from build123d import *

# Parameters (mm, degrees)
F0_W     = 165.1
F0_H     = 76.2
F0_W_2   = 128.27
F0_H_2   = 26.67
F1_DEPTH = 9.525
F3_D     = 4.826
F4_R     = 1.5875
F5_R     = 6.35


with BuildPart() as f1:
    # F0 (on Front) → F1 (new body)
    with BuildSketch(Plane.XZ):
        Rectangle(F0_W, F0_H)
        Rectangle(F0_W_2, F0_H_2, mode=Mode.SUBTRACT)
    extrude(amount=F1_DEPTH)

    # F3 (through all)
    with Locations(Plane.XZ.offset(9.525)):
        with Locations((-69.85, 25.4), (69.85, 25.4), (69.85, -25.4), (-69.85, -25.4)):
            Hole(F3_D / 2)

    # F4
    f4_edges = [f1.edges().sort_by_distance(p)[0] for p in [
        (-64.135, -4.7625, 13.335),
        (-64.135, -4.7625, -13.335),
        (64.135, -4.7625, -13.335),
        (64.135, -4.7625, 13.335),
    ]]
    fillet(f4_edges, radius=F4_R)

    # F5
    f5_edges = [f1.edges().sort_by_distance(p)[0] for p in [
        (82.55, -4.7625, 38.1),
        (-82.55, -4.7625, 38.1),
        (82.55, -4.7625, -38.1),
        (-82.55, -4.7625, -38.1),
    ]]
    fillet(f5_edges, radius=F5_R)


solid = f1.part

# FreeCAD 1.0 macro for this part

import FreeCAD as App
import Part
import Sketcher
Q = App.Units.Quantity


def edges_at(feature, points):
    """Names of the edges that pass closest to the given points."""
    edges = feature.Shape.Edges
    near = lambda p: min(range(len(edges)), key=lambda i: edges[i].distToShape(Part.Vertex(*p))[0])
    return sorted({f"Edge{near(p) + 1}" for p in points})

doc = App.newDocument("Part")
body = doc.addObject("PartDesign::Body", "Body")

# Sketch on XZ plane
sketch1 = doc.addObject("Sketcher::SketchObject", "Sketch")
body.addObject(sketch1)
sketch1.AttachmentSupport = (doc.XZ_Plane, [""])
sketch1.MapMode = "FlatFace"
sketch1.addGeometry([
    Part.LineSegment(App.Vector(-83, 38, 0), App.Vector(-83, -38, 0)),  # 0
    Part.LineSegment(App.Vector(-83, -38, 0), App.Vector(83, -38, 0)),  # 1
    Part.LineSegment(App.Vector(83, -38, 0), App.Vector(83, 38, 0)),  # 2
    Part.LineSegment(App.Vector(83, 38, 0), App.Vector(-83, 38, 0)),  # 3
    Part.LineSegment(App.Vector(64, -13, 0), App.Vector(-64, -13, 0)),  # 4
    Part.LineSegment(App.Vector(-64, -13, 0), App.Vector(-64, 13, 0)),  # 5
    Part.LineSegment(App.Vector(-64, 13, 0), App.Vector(64, 13, 0)),  # 6
    Part.LineSegment(App.Vector(64, 13, 0), App.Vector(64, -13, 0)),  # 7
], False)
sketch1.addConstraint([
    Sketcher.Constraint("Coincident", 0, 2, 1, 1),
    Sketcher.Constraint("Coincident", 1, 2, 2, 1),
    Sketcher.Constraint("Coincident", 2, 2, 3, 1),
    Sketcher.Constraint("Coincident", 3, 2, 0, 1),
    Sketcher.Constraint("Coincident", 4, 2, 5, 1),
    Sketcher.Constraint("Coincident", 5, 2, 6, 1),
    Sketcher.Constraint("Coincident", 6, 2, 7, 1),
    Sketcher.Constraint("Coincident", 7, 2, 4, 1),
    Sketcher.Constraint("Vertical", 0),
    Sketcher.Constraint("Horizontal", 1),
    Sketcher.Constraint("Vertical", 2),
    Sketcher.Constraint("Horizontal", 3),
    Sketcher.Constraint("Horizontal", 4),
    Sketcher.Constraint("Vertical", 5),
    Sketcher.Constraint("Horizontal", 6),
    Sketcher.Constraint("Vertical", 7),
    Sketcher.Constraint("Symmetric", 0, 2, 2, 2, -1, 1),
    Sketcher.Constraint("Symmetric", 4, 2, 6, 2, -1, 1),
    Sketcher.Constraint("DistanceY", 0, 2, 0, 1, Q("3 in")),
    Sketcher.Constraint("DistanceX", 1, 1, 1, 2, Q("6.5 in")),
    Sketcher.Constraint("DistanceX", 4, 2, 4, 1, Q("5.05 in")),
    Sketcher.Constraint("DistanceY", 5, 1, 5, 2, Q("1.05 in")),
])
pad1 = doc.addObject("PartDesign::Pad", "Pad")
body.addObject(pad1)
pad1.Profile = sketch1
pad1.Length = Q("0.375 in")

# Sketch on XZ plane
sketch2 = doc.addObject("Sketcher::SketchObject", "Sketch001")
body.addObject(sketch2)
sketch2.AttachmentSupport = (doc.XZ_Plane, [""])
sketch2.MapMode = "FlatFace"
sketch2.AttachmentOffset = App.Placement(App.Vector(0, 0, 0.375 * 25.4), App.Rotation())
sketch2.addGeometry([
    Part.Circle(App.Vector(-69.8, 25.4, 0), App.Vector(0, 0, 1), 2.4),
    Part.Circle(App.Vector(69.8, 25.4, 0), App.Vector(0, 0, 1), 2.4),
    Part.Circle(App.Vector(69.8, -25.4, 0), App.Vector(0, 0, 1), 2.4),
    Part.Circle(App.Vector(-69.8, -25.4, 0), App.Vector(0, 0, 1), 2.4),
], False)
sketch2.addConstraint([
    Sketcher.Constraint("Equal", 0, 1),
    Sketcher.Constraint("Equal", 1, 2),
    Sketcher.Constraint("Equal", 2, 3),
    Sketcher.Constraint("Symmetric", 0, 3, 2, 3, -1, 1),
    Sketcher.Constraint("Symmetric", 1, 3, 3, 3, -1, 1),
    Sketcher.Constraint("Symmetric", 0, 3, 1, 3, -2),
    Sketcher.Constraint("Diameter", 0, Q("0.19 in")),
    Sketcher.Constraint("DistanceY", -1, 1, 0, 3, Q("1 in")),
    Sketcher.Constraint("DistanceX", 0, 3, 1, 3, Q("5.5 in")),
])
doc.recompute()
hole = doc.addObject("PartDesign::Hole", "Hole")
body.addObject(hole)
hole.Profile = sketch2
hole.ThreadType = "None"
hole.Diameter = Q("0.19 in")
hole.DepthType = "ThroughAll"
doc.recompute()

fillet = doc.addObject("PartDesign::Fillet", "Fillet")
body.addObject(fillet)
fillet.Base = (hole, edges_at(hole, [
    (-64.135, -4.763, 13.335),
    (-64.135, -4.763, -13.335),
    (64.135, -4.763, -13.335),
    (64.135, -4.763, 13.335),
]))
fillet.Radius = Q("0.0625 in")
doc.recompute()

fillet2 = doc.addObject("PartDesign::Fillet", "Fillet001")
body.addObject(fillet2)
fillet2.Base = (fillet, edges_at(fillet, [
    (82.55, -4.763, 38.1),
    (-82.55, -4.763, 38.1),
    (82.55, -4.763, -38.1),
    (-82.55, -4.763, -38.1),
]))
fillet2.Radius = Q("0.25 in")

doc.recompute()
